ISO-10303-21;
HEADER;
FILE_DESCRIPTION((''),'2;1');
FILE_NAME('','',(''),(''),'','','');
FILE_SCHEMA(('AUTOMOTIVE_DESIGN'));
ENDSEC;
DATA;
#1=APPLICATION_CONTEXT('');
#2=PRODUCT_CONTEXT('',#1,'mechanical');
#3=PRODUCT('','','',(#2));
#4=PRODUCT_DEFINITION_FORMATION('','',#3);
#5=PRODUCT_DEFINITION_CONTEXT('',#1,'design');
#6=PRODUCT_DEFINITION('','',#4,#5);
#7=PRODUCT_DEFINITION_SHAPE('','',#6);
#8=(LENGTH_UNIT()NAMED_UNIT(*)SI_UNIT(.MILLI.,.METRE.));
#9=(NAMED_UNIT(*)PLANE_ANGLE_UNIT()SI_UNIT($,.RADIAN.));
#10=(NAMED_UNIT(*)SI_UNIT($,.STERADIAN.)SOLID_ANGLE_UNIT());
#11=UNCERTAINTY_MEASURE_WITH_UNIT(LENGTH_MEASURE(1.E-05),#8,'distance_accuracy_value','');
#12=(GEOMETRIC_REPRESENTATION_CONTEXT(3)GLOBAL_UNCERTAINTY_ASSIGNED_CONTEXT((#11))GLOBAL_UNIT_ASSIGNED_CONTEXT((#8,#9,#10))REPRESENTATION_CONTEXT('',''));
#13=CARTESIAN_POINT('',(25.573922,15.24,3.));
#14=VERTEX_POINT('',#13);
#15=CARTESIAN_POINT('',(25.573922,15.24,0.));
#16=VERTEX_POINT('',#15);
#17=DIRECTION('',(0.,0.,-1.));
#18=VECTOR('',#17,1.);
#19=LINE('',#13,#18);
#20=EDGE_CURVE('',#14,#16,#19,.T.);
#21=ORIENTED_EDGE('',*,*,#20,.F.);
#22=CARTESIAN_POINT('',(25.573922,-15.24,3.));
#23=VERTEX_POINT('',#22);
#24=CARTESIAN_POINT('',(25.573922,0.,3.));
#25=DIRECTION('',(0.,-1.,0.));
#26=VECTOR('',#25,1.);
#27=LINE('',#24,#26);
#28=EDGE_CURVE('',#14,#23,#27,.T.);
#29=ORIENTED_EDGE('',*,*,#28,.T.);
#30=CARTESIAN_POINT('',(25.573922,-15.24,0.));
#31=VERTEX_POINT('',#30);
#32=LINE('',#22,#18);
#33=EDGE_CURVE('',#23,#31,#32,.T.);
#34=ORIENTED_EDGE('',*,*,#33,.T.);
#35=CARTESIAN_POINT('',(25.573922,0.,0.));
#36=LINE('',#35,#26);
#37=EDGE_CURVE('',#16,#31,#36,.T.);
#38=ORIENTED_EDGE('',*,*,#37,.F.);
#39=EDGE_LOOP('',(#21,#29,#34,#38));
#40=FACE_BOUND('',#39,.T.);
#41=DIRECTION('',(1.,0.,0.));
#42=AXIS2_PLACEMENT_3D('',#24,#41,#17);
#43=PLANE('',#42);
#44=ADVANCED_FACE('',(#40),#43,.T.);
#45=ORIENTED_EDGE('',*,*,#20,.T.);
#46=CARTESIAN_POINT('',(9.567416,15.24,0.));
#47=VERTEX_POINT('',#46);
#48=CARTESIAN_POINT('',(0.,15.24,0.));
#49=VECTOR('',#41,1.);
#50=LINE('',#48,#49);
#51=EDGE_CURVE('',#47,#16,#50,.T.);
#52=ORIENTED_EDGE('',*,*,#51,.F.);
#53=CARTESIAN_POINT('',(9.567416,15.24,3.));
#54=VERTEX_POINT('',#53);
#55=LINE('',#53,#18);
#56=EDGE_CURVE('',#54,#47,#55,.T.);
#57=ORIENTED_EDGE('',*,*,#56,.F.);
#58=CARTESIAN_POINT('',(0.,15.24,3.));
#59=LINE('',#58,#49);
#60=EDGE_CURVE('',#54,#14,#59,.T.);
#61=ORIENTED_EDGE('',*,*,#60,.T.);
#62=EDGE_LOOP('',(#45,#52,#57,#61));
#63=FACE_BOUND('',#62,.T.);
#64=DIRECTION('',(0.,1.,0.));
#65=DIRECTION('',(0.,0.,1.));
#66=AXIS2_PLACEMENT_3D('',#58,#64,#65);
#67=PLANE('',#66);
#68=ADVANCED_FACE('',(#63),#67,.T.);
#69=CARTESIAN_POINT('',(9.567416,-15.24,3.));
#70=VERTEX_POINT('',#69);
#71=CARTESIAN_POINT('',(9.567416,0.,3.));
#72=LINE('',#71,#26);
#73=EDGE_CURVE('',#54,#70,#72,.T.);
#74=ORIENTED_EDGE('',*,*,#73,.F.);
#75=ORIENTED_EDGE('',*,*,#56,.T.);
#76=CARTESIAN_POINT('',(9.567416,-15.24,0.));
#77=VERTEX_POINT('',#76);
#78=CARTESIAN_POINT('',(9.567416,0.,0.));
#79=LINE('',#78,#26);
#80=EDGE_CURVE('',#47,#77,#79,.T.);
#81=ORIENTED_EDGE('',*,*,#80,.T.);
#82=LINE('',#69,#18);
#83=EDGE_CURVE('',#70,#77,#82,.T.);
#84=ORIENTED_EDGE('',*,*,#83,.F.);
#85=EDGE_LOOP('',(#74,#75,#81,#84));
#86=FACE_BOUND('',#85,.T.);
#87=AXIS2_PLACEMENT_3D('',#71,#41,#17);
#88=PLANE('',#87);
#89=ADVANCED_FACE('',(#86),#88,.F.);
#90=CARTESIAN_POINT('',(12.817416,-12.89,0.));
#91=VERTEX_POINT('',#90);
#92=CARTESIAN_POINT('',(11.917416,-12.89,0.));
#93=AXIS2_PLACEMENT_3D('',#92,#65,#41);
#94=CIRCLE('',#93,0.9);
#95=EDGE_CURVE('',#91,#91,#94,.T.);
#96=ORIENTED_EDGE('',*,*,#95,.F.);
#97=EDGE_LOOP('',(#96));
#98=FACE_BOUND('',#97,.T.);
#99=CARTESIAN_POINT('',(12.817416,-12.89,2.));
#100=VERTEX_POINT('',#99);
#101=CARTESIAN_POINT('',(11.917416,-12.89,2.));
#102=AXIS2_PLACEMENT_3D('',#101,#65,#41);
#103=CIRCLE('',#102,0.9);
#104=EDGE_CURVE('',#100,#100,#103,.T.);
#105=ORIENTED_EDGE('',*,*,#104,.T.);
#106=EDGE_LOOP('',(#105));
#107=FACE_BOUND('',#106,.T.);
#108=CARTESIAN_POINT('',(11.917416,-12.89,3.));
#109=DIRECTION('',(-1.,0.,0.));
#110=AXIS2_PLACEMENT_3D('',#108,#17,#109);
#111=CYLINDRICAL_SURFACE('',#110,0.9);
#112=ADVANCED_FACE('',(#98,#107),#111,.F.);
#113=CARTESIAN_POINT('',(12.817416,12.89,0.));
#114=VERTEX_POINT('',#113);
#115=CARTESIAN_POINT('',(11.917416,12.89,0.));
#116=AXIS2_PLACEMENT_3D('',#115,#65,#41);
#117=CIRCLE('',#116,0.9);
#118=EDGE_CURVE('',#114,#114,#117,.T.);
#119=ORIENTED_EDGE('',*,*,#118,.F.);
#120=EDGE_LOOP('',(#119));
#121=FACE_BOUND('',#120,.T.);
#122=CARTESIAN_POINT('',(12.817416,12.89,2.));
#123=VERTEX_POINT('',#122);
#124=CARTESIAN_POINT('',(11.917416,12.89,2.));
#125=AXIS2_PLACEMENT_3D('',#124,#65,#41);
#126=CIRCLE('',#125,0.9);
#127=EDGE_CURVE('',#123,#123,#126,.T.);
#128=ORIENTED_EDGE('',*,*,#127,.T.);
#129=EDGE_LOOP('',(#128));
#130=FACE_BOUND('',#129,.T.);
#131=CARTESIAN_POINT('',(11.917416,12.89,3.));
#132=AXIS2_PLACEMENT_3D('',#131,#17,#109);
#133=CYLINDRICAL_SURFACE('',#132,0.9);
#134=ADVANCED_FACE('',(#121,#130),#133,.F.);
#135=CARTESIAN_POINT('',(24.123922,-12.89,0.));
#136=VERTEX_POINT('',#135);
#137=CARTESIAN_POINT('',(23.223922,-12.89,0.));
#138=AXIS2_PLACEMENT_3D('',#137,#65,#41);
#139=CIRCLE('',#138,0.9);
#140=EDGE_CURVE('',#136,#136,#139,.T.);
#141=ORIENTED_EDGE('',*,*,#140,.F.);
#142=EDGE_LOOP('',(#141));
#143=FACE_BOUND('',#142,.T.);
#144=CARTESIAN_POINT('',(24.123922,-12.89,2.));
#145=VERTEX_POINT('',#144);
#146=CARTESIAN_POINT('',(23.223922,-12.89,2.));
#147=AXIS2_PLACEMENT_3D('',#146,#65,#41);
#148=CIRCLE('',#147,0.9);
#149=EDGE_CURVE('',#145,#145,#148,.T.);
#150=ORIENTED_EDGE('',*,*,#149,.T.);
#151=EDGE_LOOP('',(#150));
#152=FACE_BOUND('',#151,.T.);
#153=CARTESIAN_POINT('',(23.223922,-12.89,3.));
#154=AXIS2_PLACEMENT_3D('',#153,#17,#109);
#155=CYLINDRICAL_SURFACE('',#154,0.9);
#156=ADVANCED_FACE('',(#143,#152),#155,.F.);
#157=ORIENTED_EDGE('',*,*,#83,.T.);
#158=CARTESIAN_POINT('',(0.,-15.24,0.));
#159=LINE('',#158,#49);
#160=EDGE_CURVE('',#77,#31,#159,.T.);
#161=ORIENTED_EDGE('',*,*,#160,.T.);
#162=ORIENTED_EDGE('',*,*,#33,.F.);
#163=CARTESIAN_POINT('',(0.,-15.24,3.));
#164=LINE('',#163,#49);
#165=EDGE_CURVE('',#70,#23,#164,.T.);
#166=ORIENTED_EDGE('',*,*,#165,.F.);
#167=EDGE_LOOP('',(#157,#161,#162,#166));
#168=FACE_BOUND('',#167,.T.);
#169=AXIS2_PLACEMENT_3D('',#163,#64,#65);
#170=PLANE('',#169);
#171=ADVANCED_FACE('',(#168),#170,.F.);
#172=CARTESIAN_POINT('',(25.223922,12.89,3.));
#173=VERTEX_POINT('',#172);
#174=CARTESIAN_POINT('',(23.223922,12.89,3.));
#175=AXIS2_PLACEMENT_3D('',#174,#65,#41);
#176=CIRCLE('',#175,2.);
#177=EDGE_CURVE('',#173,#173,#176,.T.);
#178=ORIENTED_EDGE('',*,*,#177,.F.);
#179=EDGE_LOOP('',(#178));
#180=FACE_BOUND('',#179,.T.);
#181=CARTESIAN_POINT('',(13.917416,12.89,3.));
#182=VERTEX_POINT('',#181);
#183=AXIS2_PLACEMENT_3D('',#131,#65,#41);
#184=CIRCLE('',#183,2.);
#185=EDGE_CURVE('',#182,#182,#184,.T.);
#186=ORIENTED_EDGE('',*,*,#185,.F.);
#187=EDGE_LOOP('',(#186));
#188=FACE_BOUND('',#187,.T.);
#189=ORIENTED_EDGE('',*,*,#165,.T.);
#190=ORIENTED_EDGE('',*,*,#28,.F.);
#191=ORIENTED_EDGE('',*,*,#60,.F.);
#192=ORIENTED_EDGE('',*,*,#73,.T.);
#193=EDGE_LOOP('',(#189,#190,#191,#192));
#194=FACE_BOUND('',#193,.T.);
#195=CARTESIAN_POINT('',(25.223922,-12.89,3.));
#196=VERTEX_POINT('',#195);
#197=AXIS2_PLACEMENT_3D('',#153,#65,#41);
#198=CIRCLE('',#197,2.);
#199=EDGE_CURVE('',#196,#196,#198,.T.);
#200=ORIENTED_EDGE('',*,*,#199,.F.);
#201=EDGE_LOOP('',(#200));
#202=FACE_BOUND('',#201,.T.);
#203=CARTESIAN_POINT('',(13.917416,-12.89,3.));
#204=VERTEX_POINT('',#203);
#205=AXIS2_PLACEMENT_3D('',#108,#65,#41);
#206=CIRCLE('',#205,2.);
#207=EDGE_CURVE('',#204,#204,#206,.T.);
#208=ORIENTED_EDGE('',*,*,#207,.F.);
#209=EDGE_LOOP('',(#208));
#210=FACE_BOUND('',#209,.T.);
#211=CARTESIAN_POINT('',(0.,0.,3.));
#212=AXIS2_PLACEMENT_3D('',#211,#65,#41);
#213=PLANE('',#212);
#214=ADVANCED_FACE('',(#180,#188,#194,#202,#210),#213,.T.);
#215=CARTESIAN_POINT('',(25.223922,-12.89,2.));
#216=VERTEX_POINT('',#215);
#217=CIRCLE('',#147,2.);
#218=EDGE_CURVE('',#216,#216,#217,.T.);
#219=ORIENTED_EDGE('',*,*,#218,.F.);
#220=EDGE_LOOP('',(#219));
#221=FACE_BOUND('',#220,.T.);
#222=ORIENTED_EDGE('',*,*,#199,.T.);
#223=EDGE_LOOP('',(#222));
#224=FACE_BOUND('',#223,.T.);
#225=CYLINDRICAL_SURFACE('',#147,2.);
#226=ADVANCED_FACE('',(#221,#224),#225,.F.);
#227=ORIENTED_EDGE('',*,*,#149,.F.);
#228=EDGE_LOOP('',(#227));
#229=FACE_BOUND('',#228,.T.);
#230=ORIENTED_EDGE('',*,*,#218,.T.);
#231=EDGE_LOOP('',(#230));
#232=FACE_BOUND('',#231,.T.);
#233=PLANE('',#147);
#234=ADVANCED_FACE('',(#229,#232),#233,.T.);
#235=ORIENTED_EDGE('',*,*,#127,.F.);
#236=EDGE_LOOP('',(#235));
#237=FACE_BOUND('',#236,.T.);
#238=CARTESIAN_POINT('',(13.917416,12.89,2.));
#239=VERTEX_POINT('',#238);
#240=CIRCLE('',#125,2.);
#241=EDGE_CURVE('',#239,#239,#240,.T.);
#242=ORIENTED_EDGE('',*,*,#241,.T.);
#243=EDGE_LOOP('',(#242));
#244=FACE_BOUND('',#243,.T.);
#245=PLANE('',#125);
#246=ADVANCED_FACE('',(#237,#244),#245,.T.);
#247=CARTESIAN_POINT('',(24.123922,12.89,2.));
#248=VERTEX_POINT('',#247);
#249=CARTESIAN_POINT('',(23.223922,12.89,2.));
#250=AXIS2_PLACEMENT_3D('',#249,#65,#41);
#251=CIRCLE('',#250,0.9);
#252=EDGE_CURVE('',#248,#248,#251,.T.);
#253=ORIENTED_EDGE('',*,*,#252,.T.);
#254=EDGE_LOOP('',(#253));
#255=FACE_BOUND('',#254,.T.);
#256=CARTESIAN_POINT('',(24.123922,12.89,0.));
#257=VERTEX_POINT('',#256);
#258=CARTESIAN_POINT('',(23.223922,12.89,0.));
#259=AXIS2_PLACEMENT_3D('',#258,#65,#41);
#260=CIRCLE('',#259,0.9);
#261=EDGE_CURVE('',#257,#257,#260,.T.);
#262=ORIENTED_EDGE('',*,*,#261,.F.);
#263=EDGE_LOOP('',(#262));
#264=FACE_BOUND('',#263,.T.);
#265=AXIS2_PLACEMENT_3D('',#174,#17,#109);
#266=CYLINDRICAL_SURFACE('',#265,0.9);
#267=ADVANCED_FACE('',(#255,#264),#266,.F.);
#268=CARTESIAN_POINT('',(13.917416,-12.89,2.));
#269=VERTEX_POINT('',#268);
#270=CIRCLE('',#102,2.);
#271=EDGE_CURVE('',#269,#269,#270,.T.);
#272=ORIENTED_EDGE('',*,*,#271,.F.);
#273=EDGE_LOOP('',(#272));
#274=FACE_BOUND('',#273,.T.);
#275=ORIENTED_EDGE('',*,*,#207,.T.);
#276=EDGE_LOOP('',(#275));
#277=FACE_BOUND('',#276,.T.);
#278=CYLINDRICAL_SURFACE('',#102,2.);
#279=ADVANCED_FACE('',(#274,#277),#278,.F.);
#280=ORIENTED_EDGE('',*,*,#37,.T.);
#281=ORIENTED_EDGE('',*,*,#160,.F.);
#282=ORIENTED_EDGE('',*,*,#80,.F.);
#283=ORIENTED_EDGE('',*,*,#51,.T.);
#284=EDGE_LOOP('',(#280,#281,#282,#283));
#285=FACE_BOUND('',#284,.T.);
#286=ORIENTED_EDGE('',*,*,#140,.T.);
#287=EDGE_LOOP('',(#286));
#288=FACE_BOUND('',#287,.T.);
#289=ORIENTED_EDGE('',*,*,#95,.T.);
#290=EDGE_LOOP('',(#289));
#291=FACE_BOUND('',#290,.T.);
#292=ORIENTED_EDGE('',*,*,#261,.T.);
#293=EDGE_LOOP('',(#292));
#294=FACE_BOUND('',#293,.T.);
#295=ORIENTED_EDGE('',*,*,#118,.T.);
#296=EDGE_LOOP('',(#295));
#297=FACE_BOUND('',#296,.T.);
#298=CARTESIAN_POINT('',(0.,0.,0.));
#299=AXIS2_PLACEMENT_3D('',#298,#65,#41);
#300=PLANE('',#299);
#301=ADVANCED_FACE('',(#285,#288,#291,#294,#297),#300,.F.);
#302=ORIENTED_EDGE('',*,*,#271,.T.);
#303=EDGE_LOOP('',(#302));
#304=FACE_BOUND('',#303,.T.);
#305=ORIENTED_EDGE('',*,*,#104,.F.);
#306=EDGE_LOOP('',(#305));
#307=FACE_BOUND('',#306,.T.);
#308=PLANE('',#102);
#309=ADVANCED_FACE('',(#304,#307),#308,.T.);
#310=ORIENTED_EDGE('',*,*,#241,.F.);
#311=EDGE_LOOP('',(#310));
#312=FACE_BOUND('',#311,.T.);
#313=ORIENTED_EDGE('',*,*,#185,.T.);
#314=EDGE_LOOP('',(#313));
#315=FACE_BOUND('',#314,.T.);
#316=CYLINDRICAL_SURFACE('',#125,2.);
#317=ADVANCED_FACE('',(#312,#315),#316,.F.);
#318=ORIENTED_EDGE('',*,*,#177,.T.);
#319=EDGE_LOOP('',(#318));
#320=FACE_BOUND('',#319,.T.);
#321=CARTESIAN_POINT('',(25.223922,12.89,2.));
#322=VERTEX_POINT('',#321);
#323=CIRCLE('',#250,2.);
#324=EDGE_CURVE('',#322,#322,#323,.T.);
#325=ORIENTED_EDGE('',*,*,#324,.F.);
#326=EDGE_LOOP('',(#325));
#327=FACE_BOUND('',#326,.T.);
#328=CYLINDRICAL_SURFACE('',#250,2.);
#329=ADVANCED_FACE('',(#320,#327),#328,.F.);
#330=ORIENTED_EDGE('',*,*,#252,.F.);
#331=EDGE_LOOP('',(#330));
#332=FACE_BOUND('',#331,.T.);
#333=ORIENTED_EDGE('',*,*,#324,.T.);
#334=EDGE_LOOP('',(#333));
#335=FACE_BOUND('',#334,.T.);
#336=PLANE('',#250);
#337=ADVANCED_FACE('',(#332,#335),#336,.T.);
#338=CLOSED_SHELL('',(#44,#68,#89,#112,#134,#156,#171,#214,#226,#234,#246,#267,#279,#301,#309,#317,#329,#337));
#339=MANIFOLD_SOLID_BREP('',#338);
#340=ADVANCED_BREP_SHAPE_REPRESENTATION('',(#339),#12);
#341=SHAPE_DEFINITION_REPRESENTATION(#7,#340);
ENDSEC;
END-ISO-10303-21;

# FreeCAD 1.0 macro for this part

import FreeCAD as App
import Part
import Sketcher

doc = App.newDocument("Part")
body = doc.addObject("PartDesign::Body", "Body")

# Sketch on XY plane
sketch1 = body.newObject("Sketcher::SketchObject", "Sketch")
sketch1.AttachmentSupport = (doc.getObject("XY_Plane"), [""])
sketch1.MapMode = "FlatFace"
sketch1.addGeometry(Part.LineSegment(App.Vector(9.6, 15.2, 0), App.Vector(9.6, -15.2, 0)), False)
sketch1.addGeometry(Part.LineSegment(App.Vector(9.6, -15.2, 0), App.Vector(25.6, -15.2, 0)), False)
sketch1.addGeometry(Part.LineSegment(App.Vector(25.6, -15.2, 0), App.Vector(25.6, 15.2, 0)), False)
sketch1.addGeometry(Part.LineSegment(App.Vector(25.6, 15.2, 0), App.Vector(9.6, 15.2, 0)), False)
sketch1.addGeometry(Part.Circle(App.Vector(11.9, -12.9, 0), App.Vector(0, 0, 1), 0.9), False)
sketch1.addGeometry(Part.Circle(App.Vector(23.2, -12.9, 0), App.Vector(0, 0, 1), 0.9), False)
sketch1.addGeometry(Part.Circle(App.Vector(11.9, 12.9, 0), App.Vector(0, 0, 1), 0.9), False)
sketch1.addGeometry(Part.Circle(App.Vector(23.2, 12.9, 0), App.Vector(0, 0, 1), 0.9), False)
sketch1.addConstraint(Sketcher.Constraint("Coincident", 0, 2, 1, 1))
sketch1.addConstraint(Sketcher.Constraint("Coincident", 1, 2, 2, 1))
sketch1.addConstraint(Sketcher.Constraint("Coincident", 2, 2, 3, 1))
sketch1.addConstraint(Sketcher.Constraint("Coincident", 3, 2, 0, 1))
sketch1.addConstraint(Sketcher.Constraint("Vertical", 0))
sketch1.addConstraint(Sketcher.Constraint("Horizontal", 1))
sketch1.addConstraint(Sketcher.Constraint("Vertical", 2))
sketch1.addConstraint(Sketcher.Constraint("Horizontal", 3))
sketch1.addConstraint(Sketcher.Constraint("Equal", 4, 5))
sketch1.addConstraint(Sketcher.Constraint("Equal", 5, 6))
sketch1.addConstraint(Sketcher.Constraint("Equal", 6, 7))
sketch1.addConstraint(Sketcher.Constraint("Symmetric", 4, 3, 6, 3, -1))
sketch1.addConstraint(Sketcher.Constraint("Symmetric", 5, 3, 7, 3, -1))
sketch1.addConstraint(Sketcher.Constraint("Horizontal", 4, 3, 5, 3))
sketch1.addConstraint(Sketcher.Constraint("Diameter", 4, 1.8))
sketch1.addConstraint(Sketcher.Constraint("DistanceY", 0, 2, 0, 1, 30.48))
sketch1.addConstraint(Sketcher.Constraint("DistanceY", 4, 3, -1, 1, 12.89))
sketch1.addConstraint(Sketcher.Constraint("DistanceY", 0, 2, -1, 1, 15.24))
sketch1.addConstraint(Sketcher.Constraint("DistanceX", 0, 2, 4, 3, 2.35))
sketch1.addConstraint(Sketcher.Constraint("DistanceX", 5, 3, 1, 2, 2.35))
sketch1.addConstraint(Sketcher.Constraint("DistanceX", 1, 1, 1, 2, 16.006506))
sketch1.addConstraint(Sketcher.Constraint("DistanceX", -1, 1, 4, 3, 11.917416))
pad1 = body.newObject("PartDesign::Pad", "Pad")
pad1.Profile = sketch1
pad1.Length = 3

# Sketch on XY plane
sketch2 = body.newObject("Sketcher::SketchObject", "Sketch001")
sketch2.AttachmentSupport = (doc.getObject("XY_Plane"), [""])
sketch2.MapMode = "FlatFace"
sketch2.AttachmentOffset = App.Placement(App.Vector(0, 0, 3), App.Rotation())
sketch2.addGeometry(Part.Circle(App.Vector(23.2, 12.9, 0), App.Vector(0, 0, 1), 2), False)
sketch2.addGeometry(Part.Circle(App.Vector(23.2, -12.9, 0), App.Vector(0, 0, 1), 2), False)
sketch2.addGeometry(Part.Circle(App.Vector(11.9, -12.9, 0), App.Vector(0, 0, 1), 2), False)
sketch2.addGeometry(Part.Circle(App.Vector(11.9, 12.9, 0), App.Vector(0, 0, 1), 2), False)
sketch2.addConstraint(Sketcher.Constraint("Equal", 0, 1))
sketch2.addConstraint(Sketcher.Constraint("Equal", 1, 2))
sketch2.addConstraint(Sketcher.Constraint("Equal", 2, 3))
sketch2.addConstraint(Sketcher.Constraint("Symmetric", 0, 3, 1, 3, -1))
sketch2.addConstraint(Sketcher.Constraint("Symmetric", 2, 3, 3, 3, -1))
sketch2.addConstraint(Sketcher.Constraint("Horizontal", 1, 3, 2, 3))
sketch2.addConstraint(Sketcher.Constraint("Diameter", 0, 4.0))
sketch2.addConstraint(Sketcher.Constraint("DistanceY", -1, 1, 0, 3, 12.89))
sketch2.addConstraint(Sketcher.Constraint("DistanceX", -1, 1, 0, 3, 23.223922))
sketch2.addConstraint(Sketcher.Constraint("DistanceX", -1, 1, 2, 3, 11.917416))
pocket1 = body.newObject("PartDesign::Pocket", "Pocket")
pocket1.Profile = sketch2
pocket1.Length = 1

doc.recompute()
